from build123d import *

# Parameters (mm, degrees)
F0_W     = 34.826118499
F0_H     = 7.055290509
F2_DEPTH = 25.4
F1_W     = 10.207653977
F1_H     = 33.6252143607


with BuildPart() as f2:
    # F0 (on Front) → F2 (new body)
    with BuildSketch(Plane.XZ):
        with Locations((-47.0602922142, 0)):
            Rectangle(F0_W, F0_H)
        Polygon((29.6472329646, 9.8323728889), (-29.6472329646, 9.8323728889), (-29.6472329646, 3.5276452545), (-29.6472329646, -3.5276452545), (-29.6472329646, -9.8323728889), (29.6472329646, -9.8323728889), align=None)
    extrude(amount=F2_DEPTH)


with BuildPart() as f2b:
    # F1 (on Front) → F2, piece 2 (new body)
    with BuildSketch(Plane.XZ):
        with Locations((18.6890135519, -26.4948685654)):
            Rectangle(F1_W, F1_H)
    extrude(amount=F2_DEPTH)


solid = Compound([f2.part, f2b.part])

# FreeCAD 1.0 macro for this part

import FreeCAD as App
import Part
import Sketcher

V = App.Vector
Q = App.Units.Quantity


def add_polygon(sketch, points):
    """Adds a closed chain of lines whose ends are joined by coincident constraints."""
    first, n = sketch.GeometryCount, len(points)
    for a, b in zip(points, points[1:] + points[:1]):
        sketch.addGeometry(Part.LineSegment(App.Vector(*a, 0), App.Vector(*b, 0)), False)
    for i in range(n):
        sketch.addConstraint(Sketcher.Constraint("Coincident", first + i, 2, first + (i + 1) % n, 1))

doc = App.newDocument("Part")
body = doc.addObject("PartDesign::Body", "Body")

# Sketch on XZ plane
sketch1 = doc.addObject("Sketcher::SketchObject", "Sketch")
body.addObject(sketch1)
sketch1.AttachmentSupport = (doc.XZ_Plane, [""])
sketch1.MapMode = "FlatFace"
add_polygon(sketch1, [(-64, 4), (-64, -4), (-30, -4), (-30, -10), (30, -10), (30, 10), (-30, 10), (-30, 4)])  # lines 0-7
sketch1.addConstraint(Sketcher.Constraint("Vertical", 0))
sketch1.addConstraint(Sketcher.Constraint("Horizontal", 1))
sketch1.addConstraint(Sketcher.Constraint("Vertical", 2))
sketch1.addConstraint(Sketcher.Constraint("Horizontal", 3))
sketch1.addConstraint(Sketcher.Constraint("Vertical", 4))
sketch1.addConstraint(Sketcher.Constraint("Horizontal", 5))
sketch1.addConstraint(Sketcher.Constraint("Vertical", 6))
sketch1.addConstraint(Sketcher.Constraint("Horizontal", 7))
sketch1.addConstraint(Sketcher.Constraint("Symmetric", 2, 2, 4, 2, -1, 1))
sketch1.addConstraint(Sketcher.Constraint("Symmetric", 1, 2, 6, 2, -1))
sketch1.addConstraint(Sketcher.Constraint("DistanceX", 1, 1, 1, 2, 34.826118))
sketch1.addConstraint(Sketcher.Constraint("DistanceY", 0, 2, 0, 1, 7.055291))
sketch1.addConstraint(Sketcher.Constraint("DistanceX", 3, 1, 3, 2, 59.294466))
sketch1.addConstraint(Sketcher.Constraint("DistanceY", 2, 2, 2, 1, 6.304728))
pad1 = doc.addObject("PartDesign::Pad", "Pad")
body.addObject(pad1)
pad1.Profile = sketch1
pad1.Length = Q("1 in")
body2 = doc.addObject("PartDesign::Body", "Body001")

# Sketch on XZ plane
sketch2 = doc.addObject("Sketcher::SketchObject", "Sketch001")
body2.addObject(sketch2)
sketch2.AttachmentSupport = (doc.getObject("XZ_Plane001"), [""])
sketch2.MapMode = "FlatFace"
add_polygon(sketch2, [(14, -10), (14, -43), (24, -43), (24, -10)])  # lines 0-3
sketch2.addConstraint(Sketcher.Constraint("Vertical", 0))
sketch2.addConstraint(Sketcher.Constraint("Horizontal", 1))
sketch2.addConstraint(Sketcher.Constraint("Vertical", 2))
sketch2.addConstraint(Sketcher.Constraint("Horizontal", 3))
sketch2.addConstraint(Sketcher.Constraint("DistanceX", 1, 1, 1, 2, 10.207654))
sketch2.addConstraint(Sketcher.Constraint("DistanceY", 0, 2, 0, 1, 33.625214))
sketch2.addConstraint(Sketcher.Constraint("DistanceX", -1, 1, 1, 2, 23.792841))
sketch2.addConstraint(Sketcher.Constraint("DistanceY", 2, 2, -1, 1, 9.682261))
pad2 = doc.addObject("PartDesign::Pad", "Pad001")
body2.addObject(pad2)
pad2.Profile = sketch2
pad2.Length = Q("1 in")

doc.recompute()
